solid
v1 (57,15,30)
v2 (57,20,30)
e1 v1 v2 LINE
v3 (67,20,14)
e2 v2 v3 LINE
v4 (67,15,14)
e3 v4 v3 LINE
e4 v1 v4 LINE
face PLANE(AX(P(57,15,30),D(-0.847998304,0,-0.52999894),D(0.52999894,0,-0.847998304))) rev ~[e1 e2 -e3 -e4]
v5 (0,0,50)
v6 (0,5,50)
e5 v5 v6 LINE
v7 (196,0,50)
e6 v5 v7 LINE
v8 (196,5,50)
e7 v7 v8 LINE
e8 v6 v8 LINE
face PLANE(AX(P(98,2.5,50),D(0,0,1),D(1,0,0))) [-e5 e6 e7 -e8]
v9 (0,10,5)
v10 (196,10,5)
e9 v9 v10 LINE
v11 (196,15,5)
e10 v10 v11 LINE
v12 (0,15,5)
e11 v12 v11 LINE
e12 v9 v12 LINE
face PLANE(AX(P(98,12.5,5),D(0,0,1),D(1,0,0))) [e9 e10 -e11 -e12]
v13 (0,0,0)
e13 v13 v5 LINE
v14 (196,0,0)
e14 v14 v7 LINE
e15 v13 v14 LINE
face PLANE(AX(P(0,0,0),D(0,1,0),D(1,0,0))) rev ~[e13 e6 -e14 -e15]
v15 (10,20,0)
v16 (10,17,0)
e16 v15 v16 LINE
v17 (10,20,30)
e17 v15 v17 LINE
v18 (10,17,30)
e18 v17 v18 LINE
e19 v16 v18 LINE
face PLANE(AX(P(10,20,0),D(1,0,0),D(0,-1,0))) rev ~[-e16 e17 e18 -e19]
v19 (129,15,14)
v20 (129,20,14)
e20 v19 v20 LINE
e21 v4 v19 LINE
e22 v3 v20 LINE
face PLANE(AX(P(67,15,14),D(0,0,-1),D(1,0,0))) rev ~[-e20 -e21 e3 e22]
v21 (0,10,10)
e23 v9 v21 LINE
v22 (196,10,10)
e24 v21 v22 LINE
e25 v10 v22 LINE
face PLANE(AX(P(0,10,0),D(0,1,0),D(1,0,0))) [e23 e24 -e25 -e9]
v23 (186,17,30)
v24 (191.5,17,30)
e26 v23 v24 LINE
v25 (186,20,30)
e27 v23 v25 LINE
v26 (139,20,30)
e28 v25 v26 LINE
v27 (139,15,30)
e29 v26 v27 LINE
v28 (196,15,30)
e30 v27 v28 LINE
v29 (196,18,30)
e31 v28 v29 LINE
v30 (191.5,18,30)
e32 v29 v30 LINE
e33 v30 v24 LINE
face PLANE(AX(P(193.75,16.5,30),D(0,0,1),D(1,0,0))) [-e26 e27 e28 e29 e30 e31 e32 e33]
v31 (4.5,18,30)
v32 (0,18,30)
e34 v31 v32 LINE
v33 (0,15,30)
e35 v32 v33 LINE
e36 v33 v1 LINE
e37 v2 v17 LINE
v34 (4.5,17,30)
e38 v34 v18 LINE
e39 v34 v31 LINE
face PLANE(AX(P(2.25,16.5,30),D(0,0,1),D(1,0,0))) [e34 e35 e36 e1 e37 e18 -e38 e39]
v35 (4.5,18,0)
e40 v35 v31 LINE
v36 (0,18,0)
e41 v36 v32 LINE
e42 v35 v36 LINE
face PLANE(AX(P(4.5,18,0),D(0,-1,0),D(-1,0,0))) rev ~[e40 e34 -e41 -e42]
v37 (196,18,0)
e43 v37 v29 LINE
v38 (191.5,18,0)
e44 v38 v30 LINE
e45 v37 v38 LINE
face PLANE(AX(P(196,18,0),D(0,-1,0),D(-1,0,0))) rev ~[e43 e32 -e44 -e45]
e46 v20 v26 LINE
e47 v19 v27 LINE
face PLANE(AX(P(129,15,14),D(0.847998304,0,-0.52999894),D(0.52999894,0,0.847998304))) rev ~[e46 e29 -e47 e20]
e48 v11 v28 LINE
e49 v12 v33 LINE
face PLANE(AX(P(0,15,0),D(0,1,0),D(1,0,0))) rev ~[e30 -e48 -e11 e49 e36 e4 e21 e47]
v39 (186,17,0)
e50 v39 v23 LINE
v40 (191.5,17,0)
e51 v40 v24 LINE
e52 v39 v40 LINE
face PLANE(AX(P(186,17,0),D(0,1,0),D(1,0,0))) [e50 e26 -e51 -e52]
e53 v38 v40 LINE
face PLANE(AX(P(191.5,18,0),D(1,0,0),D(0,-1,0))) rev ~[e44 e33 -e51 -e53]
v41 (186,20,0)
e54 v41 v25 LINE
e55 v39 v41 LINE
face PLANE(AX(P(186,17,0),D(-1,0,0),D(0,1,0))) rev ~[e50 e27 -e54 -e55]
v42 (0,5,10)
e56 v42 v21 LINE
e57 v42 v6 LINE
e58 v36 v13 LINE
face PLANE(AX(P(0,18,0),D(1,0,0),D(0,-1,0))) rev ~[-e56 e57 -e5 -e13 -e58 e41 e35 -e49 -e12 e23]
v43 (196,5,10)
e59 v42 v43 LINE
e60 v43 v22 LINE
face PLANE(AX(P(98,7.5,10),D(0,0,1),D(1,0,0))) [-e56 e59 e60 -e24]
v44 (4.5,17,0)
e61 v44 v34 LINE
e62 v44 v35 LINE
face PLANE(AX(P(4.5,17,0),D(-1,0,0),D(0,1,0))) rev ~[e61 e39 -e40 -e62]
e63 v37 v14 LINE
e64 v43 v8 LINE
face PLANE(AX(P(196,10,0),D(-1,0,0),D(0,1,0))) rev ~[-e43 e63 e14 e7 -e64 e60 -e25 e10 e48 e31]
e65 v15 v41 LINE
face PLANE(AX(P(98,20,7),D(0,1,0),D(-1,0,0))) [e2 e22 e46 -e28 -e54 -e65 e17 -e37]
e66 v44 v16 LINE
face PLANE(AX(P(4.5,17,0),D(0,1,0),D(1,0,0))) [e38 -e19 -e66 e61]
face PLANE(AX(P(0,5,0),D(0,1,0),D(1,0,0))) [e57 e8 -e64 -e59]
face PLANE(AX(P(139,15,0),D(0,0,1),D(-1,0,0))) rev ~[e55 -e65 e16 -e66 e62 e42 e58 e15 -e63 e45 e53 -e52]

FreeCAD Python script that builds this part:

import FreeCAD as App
import Part
import Sketcher
Q = App.Units.Quantity


def add_polygon(sketch, points):
    """Adds a closed chain of lines whose ends are joined by coincident constraints."""
    first, n = sketch.GeometryCount, len(points)
    for a, b in zip(points, points[1:] + points[:1]):
        sketch.addGeometry(Part.LineSegment(App.Vector(*a, 0), App.Vector(*b, 0)), False)
    for i in range(n):
        sketch.addConstraint(Sketcher.Constraint("Coincident", first + i, 2, first + (i + 1) % n, 1))

doc = App.newDocument("Part")
body = doc.addObject("PartDesign::Body", "Body")

# Sketch on XY plane
sketch1 = body.newObject("Sketcher::SketchObject", "Sketch")
sketch1.AttachmentSupport = (doc.getObject("XY_Plane"), [""])
sketch1.MapMode = "FlatFace"
add_polygon(sketch1, [(0, 5), (0, 0), (196, 0), (196, 5)])  # lines 0-3
sketch1.addConstraint(Sketcher.Constraint("Vertical", 0))
sketch1.addConstraint(Sketcher.Constraint("Horizontal", 1))
sketch1.addConstraint(Sketcher.Constraint("Vertical", 2))
sketch1.addConstraint(Sketcher.Constraint("Horizontal", 3))
sketch1.addConstraint(Sketcher.Constraint("Coincident", 0, 2, -1, 1))
sketch1.addConstraint(Sketcher.Constraint("DistanceX", 1, 1, 1, 2, Q("196 mm")))
sketch1.addConstraint(Sketcher.Constraint("DistanceY", 0, 2, 0, 1, Q("5 mm")))
pad1 = body.newObject("PartDesign::Pad", "Pad")
pad1.Profile = sketch1
pad1.Length = 50

# Sketch on XY plane
sketch2 = body.newObject("Sketcher::SketchObject", "Sketch001")
sketch2.AttachmentSupport = (doc.getObject("XY_Plane"), [""])
sketch2.MapMode = "FlatFace"
add_polygon(sketch2, [(0, 10), (0, 5), (196, 5), (196, 10)])  # lines 0-3
sketch2.addConstraint(Sketcher.Constraint("Vertical", 0))
sketch2.addConstraint(Sketcher.Constraint("Horizontal", 1))
sketch2.addConstraint(Sketcher.Constraint("Vertical", 2))
sketch2.addConstraint(Sketcher.Constraint("Horizontal", 3))
sketch2.addConstraint(Sketcher.Constraint("PointOnObject", 0, 2, -2))
sketch2.addConstraint(Sketcher.Constraint("DistanceX", 1, 1, 1, 2, Q("196 mm")))
sketch2.addConstraint(Sketcher.Constraint("DistanceY", 0, 2, 0, 1, Q("5 mm")))
sketch2.addConstraint(Sketcher.Constraint("DistanceY", -1, 1, 0, 2, Q("5 mm")))
pad2 = body.newObject("PartDesign::Pad", "Pad001")
pad2.Profile = sketch2
pad2.Length = 10

# Sketch on XY plane
sketch3 = body.newObject("Sketcher::SketchObject", "Sketch002")
sketch3.AttachmentSupport = (doc.getObject("XY_Plane"), [""])
sketch3.MapMode = "FlatFace"
add_polygon(sketch3, [(0, 15), (0, 10), (196, 10), (196, 15)])  # lines 0-3
sketch3.addConstraint(Sketcher.Constraint("Vertical", 0))
sketch3.addConstraint(Sketcher.Constraint("Horizontal", 1))
sketch3.addConstraint(Sketcher.Constraint("Vertical", 2))
sketch3.addConstraint(Sketcher.Constraint("Horizontal", 3))
sketch3.addConstraint(Sketcher.Constraint("PointOnObject", 0, 2, -2))
sketch3.addConstraint(Sketcher.Constraint("DistanceX", 1, 1, 1, 2, Q("196 mm")))
sketch3.addConstraint(Sketcher.Constraint("DistanceY", 0, 2, 0, 1, Q("5 mm")))
sketch3.addConstraint(Sketcher.Constraint("DistanceY", -1, 1, 0, 2, Q("10 mm")))
pad3 = body.newObject("PartDesign::Pad", "Pad002")
pad3.Profile = sketch3
pad3.Length = 5

# Sketch on XY plane
sketch4 = body.newObject("Sketcher::SketchObject", "Sketch003")
sketch4.AttachmentSupport = (doc.getObject("XY_Plane"), [""])
sketch4.MapMode = "FlatFace"
add_polygon(sketch4, [(0, 18), (0, 15), (57, 15), (57, 20), (10, 20), (10, 17), (4.5, 17), (4.5, 18)])  # lines 0-7
add_polygon(sketch4, [(196, 15), (196, 18), (191.5, 18), (191.5, 17), (186, 17), (186, 20), (139, 20), (139, 15)])  # lines 8-15
sketch4.addConstraint(Sketcher.Constraint("Vertical", 0))
sketch4.addConstraint(Sketcher.Constraint("Horizontal", 1))
sketch4.addConstraint(Sketcher.Constraint("Vertical", 2))
sketch4.addConstraint(Sketcher.Constraint("Horizontal", 3))
sketch4.addConstraint(Sketcher.Constraint("Vertical", 4))
sketch4.addConstraint(Sketcher.Constraint("Horizontal", 5))
sketch4.addConstraint(Sketcher.Constraint("Vertical", 6))
sketch4.addConstraint(Sketcher.Constraint("Horizontal", 7))
sketch4.addConstraint(Sketcher.Constraint("Vertical", 8))
sketch4.addConstraint(Sketcher.Constraint("Horizontal", 9))
sketch4.addConstraint(Sketcher.Constraint("Vertical", 10))
sketch4.addConstraint(Sketcher.Constraint("Horizontal", 11))
sketch4.addConstraint(Sketcher.Constraint("Vertical", 12))
sketch4.addConstraint(Sketcher.Constraint("Horizontal", 13))
sketch4.addConstraint(Sketcher.Constraint("Vertical", 14))
sketch4.addConstraint(Sketcher.Constraint("Horizontal", 15))
sketch4.addConstraint(Sketcher.Constraint("PointOnObject", 0, 2, -2))
sketch4.addConstraint(Sketcher.Constraint("Horizontal", 7, 2, 8, 2))
sketch4.addConstraint(Sketcher.Constraint("Horizontal", 5, 2, 10, 2))
sketch4.addConstraint(Sketcher.Constraint("Horizontal", 3, 2, 12, 2))
sketch4.addConstraint(Sketcher.Constraint("Horizontal", 1, 2, 14, 2))
sketch4.addConstraint(Sketcher.Constraint("Equal", 7, 9))
sketch4.addConstraint(Sketcher.Constraint("Equal", 5, 11))
sketch4.addConstraint(Sketcher.Constraint("Equal", 3, 13))
sketch4.addConstraint(Sketcher.Constraint("Equal", 0, 4))
sketch4.addConstraint(Sketcher.Constraint("DistanceX", 1, 1, 1, 2, Q("57 mm")))
sketch4.addConstraint(Sketcher.Constraint("DistanceX", 3, 2, 3, 1, Q("47 mm")))
sketch4.addConstraint(Sketcher.Constraint("DistanceY", 0, 2, 0, 1, Q("3 mm")))
sketch4.addConstraint(Sketcher.Constraint("DistanceY", 2, 1, 2, 2, Q("5 mm")))
sketch4.addConstraint(Sketcher.Constraint("DistanceX", 5, 2, 5, 1, Q("5.5 mm")))
sketch4.addConstraint(Sketcher.Constraint("DistanceY", -1, 1, 0, 2, Q("15 mm")))
sketch4.addConstraint(Sketcher.Constraint("DistanceX", -1, 1, 8, 2, Q("196 mm")))
pad4 = body.newObject("PartDesign::Pad", "Pad003")
pad4.Profile = sketch4
pad4.Length = 30

# Sketch on XZ plane
sketch5 = body.newObject("Sketcher::SketchObject", "Sketch004")
sketch5.AttachmentSupport = (doc.getObject("XZ_Plane"), [""])
sketch5.MapMode = "FlatFace"
sketch5.AttachmentOffset = App.Placement(App.Vector(0, 0, -15), App.Rotation())
add_polygon(sketch5, [(139, 0), (57, 0), (57, 30), (67, 14), (129, 14), (139, 30)])  # lines 0-5
sketch5.addConstraint(Sketcher.Constraint("Horizontal", 0))
sketch5.addConstraint(Sketcher.Constraint("Vertical", 1))
sketch5.addConstraint(Sketcher.Constraint("Horizontal", 3))
sketch5.addConstraint(Sketcher.Constraint("Vertical", 5))
sketch5.addConstraint(Sketcher.Constraint("PointOnObject", 0, 2, -1))
sketch5.addConstraint(Sketcher.Constraint("Horizontal", 1, 2, 4, 2))
sketch5.addConstraint(Sketcher.Constraint("Equal", 2, 4))
sketch5.addConstraint(Sketcher.Constraint("DistanceX", 0, 2, 0, 1, Q("82 mm")))
sketch5.addConstraint(Sketcher.Constraint("DistanceX", 3, 1, 3, 2, Q("62 mm")))
sketch5.addConstraint(Sketcher.Constraint("DistanceY", 1, 1, 1, 2, Q("30 mm")))
sketch5.addConstraint(Sketcher.Constraint("DistanceX", -1, 1, 0, 2, Q("57 mm")))
sketch5.addConstraint(Sketcher.Constraint("DistanceY", -1, 1, 2, 2, Q("14 mm")))
pad5 = body.newObject("PartDesign::Pad", "Pad004")
pad5.Profile = sketch5
pad5.Length = 5
pad5.Reversed = True

doc.recompute()
